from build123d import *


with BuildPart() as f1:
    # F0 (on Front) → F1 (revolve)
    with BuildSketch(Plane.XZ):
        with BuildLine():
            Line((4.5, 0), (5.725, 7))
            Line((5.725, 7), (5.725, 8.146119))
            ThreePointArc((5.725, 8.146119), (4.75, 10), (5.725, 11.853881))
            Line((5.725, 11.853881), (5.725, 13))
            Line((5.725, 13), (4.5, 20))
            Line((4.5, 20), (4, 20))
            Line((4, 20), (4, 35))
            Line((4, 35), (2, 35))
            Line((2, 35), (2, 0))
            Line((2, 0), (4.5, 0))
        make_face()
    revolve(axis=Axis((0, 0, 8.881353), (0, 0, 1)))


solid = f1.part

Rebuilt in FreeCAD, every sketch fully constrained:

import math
import FreeCAD as App
import Part
import Sketcher

V = App.Vector

doc = App.newDocument("Part")
body = doc.addObject("PartDesign::Body", "Body")

sketch1 = body.newObject("Sketcher::SketchObject", "Sketch")
sketch1.AttachmentSupport = (doc.getObject("XZ_Plane"), [""])
sketch1.MapMode = "FlatFace"
sketch1.addGeometry([
    Part.LineSegment(V(4.5, 0, 0), V(5.7, 7, 0)),
    Part.LineSegment(V(5.7, 7, 0), V(5.7, 8.1, 0)),
    Part.ArcOfCircle(Part.Circle(V(7, 10, 0), V(0, 0, 1), 2.2), math.radians(125), math.radians(235)),
    Part.LineSegment(V(5.7, 11.9, 0), V(5.7, 13, 0)),
    Part.LineSegment(V(5.7, 13, 0), V(4.5, 20, 0)),
    Part.LineSegment(V(4.5, 20, 0), V(4, 20, 0)),
    Part.LineSegment(V(4, 20, 0), V(4, 35, 0)),
    Part.LineSegment(V(4, 35, 0), V(2, 35, 0)),
    Part.LineSegment(V(2, 35, 0), V(2, 0, 0)),
    Part.LineSegment(V(2, 0, 0), V(4.5, 0, 0)),
], False)
sketch1.addConstraint([
    Sketcher.Constraint("Coincident", 0, 2, 1, 1),
    Sketcher.Constraint("Coincident", 1, 2, 2, 2),
    Sketcher.Constraint("Coincident", 2, 1, 3, 1),
    Sketcher.Constraint("Coincident", 3, 2, 4, 1),
    Sketcher.Constraint("Coincident", 4, 2, 5, 1),
    Sketcher.Constraint("Coincident", 5, 2, 6, 1),
    Sketcher.Constraint("Coincident", 6, 2, 7, 1),
    Sketcher.Constraint("Coincident", 7, 2, 8, 1),
    Sketcher.Constraint("Coincident", 8, 2, 9, 1),
    Sketcher.Constraint("Coincident", 9, 2, 0, 1),
    Sketcher.Constraint("Vertical", 1),
    Sketcher.Constraint("Vertical", 3),
    Sketcher.Constraint("Horizontal", 5),
    Sketcher.Constraint("Vertical", 6),
    Sketcher.Constraint("Horizontal", 7),
    Sketcher.Constraint("Vertical", 8),
    Sketcher.Constraint("Horizontal", 9),
    Sketcher.Constraint("PointOnObject", 8, 2, -1),
    Sketcher.Constraint("Vertical", 1, 2, 2, 1),
    Sketcher.Constraint("Vertical", 4, 2, 9, 2),
    Sketcher.Constraint("Equal", 1, 3),
    Sketcher.Constraint("Equal", 0, 4),
    Sketcher.Constraint("DistanceX", 7, 2, 7, 1, 2.0),
    Sketcher.Constraint("DistanceY", 6, 1, 6, 2, 15.0),
    Sketcher.Constraint("DistanceY", 8, 2, 8, 1, 35.0),
    Sketcher.Constraint("Radius", 2, 2.25),
    Sketcher.Constraint("DistanceX", 5, 2, 5, 1, 0.5),
    Sketcher.Constraint("DistanceX", -1, 1, 2, 3, 7.0),
    Sketcher.Constraint("DistanceY", -1, 1, 0, 2, 7.0),
    Sketcher.Constraint("DistanceX", -1, 1, 5, 2, 4.0),
    Sketcher.Constraint("DistanceX", -1, 1, 0, 2, 5.725),
])
revolution = body.newObject("PartDesign::Revolution", "Revolution")
revolution.Profile = sketch1
revolution.ReferenceAxis = (sketch1, ["V_Axis"])
revolution.Angle = 360

doc.recompute()
